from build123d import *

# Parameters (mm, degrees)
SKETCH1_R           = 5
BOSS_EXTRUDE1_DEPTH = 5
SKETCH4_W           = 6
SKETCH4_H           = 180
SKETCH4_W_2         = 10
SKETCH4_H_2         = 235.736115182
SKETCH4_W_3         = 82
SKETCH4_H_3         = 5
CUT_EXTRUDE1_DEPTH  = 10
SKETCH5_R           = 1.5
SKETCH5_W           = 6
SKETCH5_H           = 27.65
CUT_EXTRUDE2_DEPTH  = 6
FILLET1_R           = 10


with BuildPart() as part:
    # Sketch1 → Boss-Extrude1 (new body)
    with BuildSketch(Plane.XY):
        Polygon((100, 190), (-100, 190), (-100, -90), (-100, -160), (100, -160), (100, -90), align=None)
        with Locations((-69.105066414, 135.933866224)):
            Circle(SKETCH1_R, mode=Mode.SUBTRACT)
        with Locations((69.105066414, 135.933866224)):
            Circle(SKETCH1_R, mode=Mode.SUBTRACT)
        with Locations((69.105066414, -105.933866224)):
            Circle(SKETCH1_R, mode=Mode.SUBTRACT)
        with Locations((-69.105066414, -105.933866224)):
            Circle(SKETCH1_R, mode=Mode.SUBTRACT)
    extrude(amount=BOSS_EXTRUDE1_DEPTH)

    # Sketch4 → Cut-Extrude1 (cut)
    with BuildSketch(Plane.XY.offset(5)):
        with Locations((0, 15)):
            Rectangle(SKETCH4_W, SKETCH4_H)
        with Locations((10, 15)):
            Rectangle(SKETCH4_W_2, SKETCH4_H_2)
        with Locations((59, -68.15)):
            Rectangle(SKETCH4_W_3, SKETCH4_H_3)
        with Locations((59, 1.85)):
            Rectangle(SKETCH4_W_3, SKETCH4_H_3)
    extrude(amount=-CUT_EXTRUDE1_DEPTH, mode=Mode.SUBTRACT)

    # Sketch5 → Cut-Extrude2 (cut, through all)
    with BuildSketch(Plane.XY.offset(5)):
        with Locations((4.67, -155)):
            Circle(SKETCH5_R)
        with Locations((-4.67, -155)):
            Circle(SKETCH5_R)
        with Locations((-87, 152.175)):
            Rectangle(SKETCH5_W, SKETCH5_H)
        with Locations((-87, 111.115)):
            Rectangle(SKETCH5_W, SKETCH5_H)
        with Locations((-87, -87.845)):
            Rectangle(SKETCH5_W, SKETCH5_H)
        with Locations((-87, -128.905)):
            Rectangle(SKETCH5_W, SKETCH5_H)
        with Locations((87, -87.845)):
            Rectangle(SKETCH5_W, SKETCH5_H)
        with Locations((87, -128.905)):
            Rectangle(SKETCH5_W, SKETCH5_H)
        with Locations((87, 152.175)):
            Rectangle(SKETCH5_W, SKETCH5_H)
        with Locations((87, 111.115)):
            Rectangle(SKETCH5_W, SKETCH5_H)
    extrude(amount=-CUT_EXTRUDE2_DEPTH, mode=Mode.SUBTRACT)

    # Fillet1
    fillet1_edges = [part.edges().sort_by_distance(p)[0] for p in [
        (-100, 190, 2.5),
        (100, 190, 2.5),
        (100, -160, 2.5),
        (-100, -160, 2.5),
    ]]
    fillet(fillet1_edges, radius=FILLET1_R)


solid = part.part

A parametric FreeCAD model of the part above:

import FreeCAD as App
import Part
import Sketcher

V = App.Vector


def edges_at(feature, points):
    """Names of the edges that pass closest to the given points."""
    edges = feature.Shape.Edges
    near = lambda p: min(range(len(edges)), key=lambda i: edges[i].distToShape(Part.Vertex(*p))[0])
    return sorted({f"Edge{near(p) + 1}" for p in points})

doc = App.newDocument("Part")
body = doc.addObject("PartDesign::Body", "Body")

# Sketch on XY plane
sketch1 = doc.addObject("Sketcher::SketchObject", "Sketch")
body.addObject(sketch1)
sketch1.AttachmentSupport = (doc.XY_Plane, [""])
sketch1.MapMode = "FlatFace"
sketch1.addGeometry(Part.LineSegment(V(100, 190, 0), V(-100, 190, 0)), False)
sketch1.addGeometry(Part.LineSegment(V(-100, 190, 0), V(-100, -160, 0)), False)
sketch1.addGeometry(Part.LineSegment(V(-100, -160, 0), V(100, -160, 0)), False)
sketch1.addGeometry(Part.LineSegment(V(100, -160, 0), V(100, 190, 0)), False)
sketch1.addGeometry(Part.Circle(V(-69.105066, -105.933866, 0), V(0, 0, 1), 5), False)
sketch1.addGeometry(Part.Circle(V(69.105066, -105.933866, 0), V(0, 0, 1), 5), False)
sketch1.addGeometry(Part.Circle(V(-69.105066, 135.933866, 0), V(0, 0, 1), 5), False)
sketch1.addGeometry(Part.Circle(V(69.105066, 135.933866, 0), V(0, 0, 1), 5), False)
sketch1.addConstraint(Sketcher.Constraint("Coincident", 0, 2, 1, 1))
sketch1.addConstraint(Sketcher.Constraint("Coincident", 1, 2, 2, 1))
sketch1.addConstraint(Sketcher.Constraint("Coincident", 2, 2, 3, 1))
sketch1.addConstraint(Sketcher.Constraint("Coincident", 3, 2, 0, 1))
sketch1.addConstraint(Sketcher.Constraint("Horizontal", 0))
sketch1.addConstraint(Sketcher.Constraint("Vertical", 1))
sketch1.addConstraint(Sketcher.Constraint("Horizontal", 2))
sketch1.addConstraint(Sketcher.Constraint("Vertical", 3))
sketch1.addConstraint(Sketcher.Constraint("Equal", 4, 5))
sketch1.addConstraint(Sketcher.Constraint("Equal", 5, 6))
sketch1.addConstraint(Sketcher.Constraint("Equal", 6, 7))
sketch1.addConstraint(Sketcher.Constraint("Symmetric", 4, 3, 5, 3, -2))
sketch1.addConstraint(Sketcher.Constraint("Symmetric", 6, 3, 7, 3, -2))
sketch1.addConstraint(Sketcher.Constraint("Vertical", 4, 3, 6, 3))
sketch1.addConstraint(Sketcher.Constraint("Diameter", 4, 10.0))
sketch1.addConstraint(Sketcher.Constraint("DistanceX", 0, 2, 0, 1, 200.0))
sketch1.addConstraint(Sketcher.Constraint("DistanceY", 1, 2, 1, 1, 350.0))
sketch1.addConstraint(Sketcher.Constraint("DistanceX", 0, 2, -1, 1, 100.0))
sketch1.addConstraint(Sketcher.Constraint("DistanceY", -1, 1, 0, 2, 190.0))
sketch1.addConstraint(Sketcher.Constraint("DistanceX", 4, 3, -1, 1, 69.105066))
sketch1.addConstraint(Sketcher.Constraint("DistanceY", 4, 3, -1, 1, 105.933866))
sketch1.addConstraint(Sketcher.Constraint("DistanceY", -1, 1, 6, 3, 135.933866))
pad1 = doc.addObject("PartDesign::Pad", "Pad")
body.addObject(pad1)
pad1.Profile = sketch1
pad1.Length = 5

# Sketch on XY plane
sketch2 = doc.addObject("Sketcher::SketchObject", "Sketch001")
body.addObject(sketch2)
sketch2.AttachmentSupport = (doc.XY_Plane, [""])
sketch2.MapMode = "FlatFace"
sketch2.AttachmentOffset = App.Placement(V(0, 0, 5), App.Rotation())
sketch2.addGeometry(Part.LineSegment(V(-3, 105, 0), V(-3, -75, 0)), False)
sketch2.addGeometry(Part.LineSegment(V(-3, -75, 0), V(3, -75, 0)), False)
sketch2.addGeometry(Part.LineSegment(V(3, -75, 0), V(3, 105, 0)), False)
sketch2.addGeometry(Part.LineSegment(V(3, 105, 0), V(-3, 105, 0)), False)
sketch2.addGeometry(Part.LineSegment(V(5, 132.868058, 0), V(5, -102.868058, 0)), False)
sketch2.addGeometry(Part.LineSegment(V(5, -102.868058, 0), V(15, -102.868058, 0)), False)
sketch2.addGeometry(Part.LineSegment(V(15, -102.868058, 0), V(15, 132.868058, 0)), False)
sketch2.addGeometry(Part.LineSegment(V(15, 132.868058, 0), V(5, 132.868058, 0)), False)
sketch2.addGeometry(Part.LineSegment(V(18, -65.65, 0), V(18, -70.65, 0)), False)
sketch2.addGeometry(Part.LineSegment(V(18, -70.65, 0), V(100, -70.65, 0)), False)
sketch2.addGeometry(Part.LineSegment(V(100, -70.65, 0), V(100, -65.65, 0)), False)
sketch2.addGeometry(Part.LineSegment(V(100, -65.65, 0), V(18, -65.65, 0)), False)
sketch2.addGeometry(Part.LineSegment(V(18, 4.35, 0), V(18, -0.65, 0)), False)
sketch2.addGeometry(Part.LineSegment(V(18, -0.65, 0), V(100, -0.65, 0)), False)
sketch2.addGeometry(Part.LineSegment(V(100, -0.65, 0), V(100, 4.35, 0)), False)
sketch2.addGeometry(Part.LineSegment(V(100, 4.35, 0), V(18, 4.35, 0)), False)
sketch2.addConstraint(Sketcher.Constraint("Coincident", 0, 2, 1, 1))
sketch2.addConstraint(Sketcher.Constraint("Coincident", 1, 2, 2, 1))
sketch2.addConstraint(Sketcher.Constraint("Coincident", 2, 2, 3, 1))
sketch2.addConstraint(Sketcher.Constraint("Coincident", 3, 2, 0, 1))
sketch2.addConstraint(Sketcher.Constraint("Coincident", 4, 2, 5, 1))
sketch2.addConstraint(Sketcher.Constraint("Coincident", 5, 2, 6, 1))
sketch2.addConstraint(Sketcher.Constraint("Coincident", 6, 2, 7, 1))
sketch2.addConstraint(Sketcher.Constraint("Coincident", 7, 2, 4, 1))
sketch2.addConstraint(Sketcher.Constraint("Coincident", 8, 2, 9, 1))
sketch2.addConstraint(Sketcher.Constraint("Coincident", 9, 2, 10, 1))
sketch2.addConstraint(Sketcher.Constraint("Coincident", 10, 2, 11, 1))
sketch2.addConstraint(Sketcher.Constraint("Coincident", 11, 2, 8, 1))
sketch2.addConstraint(Sketcher.Constraint("Coincident", 12, 2, 13, 1))
sketch2.addConstraint(Sketcher.Constraint("Coincident", 13, 2, 14, 1))
sketch2.addConstraint(Sketcher.Constraint("Coincident", 14, 2, 15, 1))
sketch2.addConstraint(Sketcher.Constraint("Coincident", 15, 2, 12, 1))
sketch2.addConstraint(Sketcher.Constraint("Vertical", 0))
sketch2.addConstraint(Sketcher.Constraint("Horizontal", 1))
sketch2.addConstraint(Sketcher.Constraint("Vertical", 2))
sketch2.addConstraint(Sketcher.Constraint("Horizontal", 3))
sketch2.addConstraint(Sketcher.Constraint("Vertical", 4))
sketch2.addConstraint(Sketcher.Constraint("Horizontal", 5))
sketch2.addConstraint(Sketcher.Constraint("Vertical", 6))
sketch2.addConstraint(Sketcher.Constraint("Horizontal", 7))
sketch2.addConstraint(Sketcher.Constraint("Vertical", 8))
sketch2.addConstraint(Sketcher.Constraint("Horizontal", 9))
sketch2.addConstraint(Sketcher.Constraint("Vertical", 10))
sketch2.addConstraint(Sketcher.Constraint("Horizontal", 11))
sketch2.addConstraint(Sketcher.Constraint("Vertical", 12))
sketch2.addConstraint(Sketcher.Constraint("Horizontal", 13))
sketch2.addConstraint(Sketcher.Constraint("Vertical", 14))
sketch2.addConstraint(Sketcher.Constraint("Horizontal", 15))
sketch2.addConstraint(Sketcher.Constraint("Vertical", 11, 2, 12, 2))
sketch2.addConstraint(Sketcher.Constraint("Vertical", 10, 2, 13, 2))
sketch2.addConstraint(Sketcher.Constraint("Equal", 10, 12))
sketch2.addConstraint(Sketcher.Constraint("DistanceX", 1, 1, 1, 2, 6.0))
sketch2.addConstraint(Sketcher.Constraint("DistanceX", 5, 1, 5, 2, 10.0))
sketch2.addConstraint(Sketcher.Constraint("DistanceX", 9, 1, 9, 2, 82.0))
sketch2.addConstraint(Sketcher.Constraint("DistanceY", 0, 2, 0, 1, 180.0))
sketch2.addConstraint(Sketcher.Constraint("DistanceY", 8, 2, 8, 1, 5.0))
sketch2.addConstraint(Sketcher.Constraint("DistanceX", 0, 2, -1, 1, 3.0))
sketch2.addConstraint(Sketcher.Constraint("DistanceY", 0, 2, -1, 1, 75.0))
sketch2.addConstraint(Sketcher.Constraint("DistanceX", -1, 1, 4, 2, 5.0))
sketch2.addConstraint(Sketcher.Constraint("DistanceX", -1, 1, 8, 2, 18.0))
sketch2.addConstraint(Sketcher.Constraint("DistanceY", 11, 2, 12, 2, 65.0))
sketch2.addConstraint(Sketcher.Constraint("DistanceY", 8, 2, -1, 1, 70.65))
sketch2.addConstraint(Sketcher.Constraint("DistanceY", 4, 2, 4, 1, 235.736115))
sketch2.addConstraint(Sketcher.Constraint("DistanceY", 4, 2, -1, 1, 102.868058))
pocket1 = doc.addObject("PartDesign::Pocket", "Pocket")
body.addObject(pocket1)
pocket1.Profile = sketch2
pocket1.Length = 10

# Sketch on XY plane
sketch3 = doc.addObject("Sketcher::SketchObject", "Sketch002")
body.addObject(sketch3)
sketch3.AttachmentSupport = (doc.XY_Plane, [""])
sketch3.MapMode = "FlatFace"
sketch3.AttachmentOffset = App.Placement(V(0, 0, 5), App.Rotation())
sketch3.addGeometry(Part.Circle(V(4.67, -155, 0), V(0, 0, 1), 1.5), False)
sketch3.addGeometry(Part.Circle(V(-4.67, -155, 0), V(0, 0, 1), 1.5), False)
sketch3.addGeometry(Part.LineSegment(V(-90, 166, 0), V(-90, 138.35, 0)), False)
sketch3.addGeometry(Part.LineSegment(V(-90, 138.35, 0), V(-84, 138.35, 0)), False)
sketch3.addGeometry(Part.LineSegment(V(-84, 138.35, 0), V(-84, 166, 0)), False)
sketch3.addGeometry(Part.LineSegment(V(-84, 166, 0), V(-90, 166, 0)), False)
sketch3.addGeometry(Part.LineSegment(V(-90, 124.94, 0), V(-90, 97.29, 0)), False)
sketch3.addGeometry(Part.LineSegment(V(-90, 97.29, 0), V(-84, 97.29, 0)), False)
sketch3.addGeometry(Part.LineSegment(V(-84, 97.29, 0), V(-84, 124.94, 0)), False)
sketch3.addGeometry(Part.LineSegment(V(-84, 124.94, 0), V(-90, 124.94, 0)), False)
sketch3.addGeometry(Part.LineSegment(V(-90, -74.02, 0), V(-90, -101.67, 0)), False)
sketch3.addGeometry(Part.LineSegment(V(-90, -101.67, 0), V(-84, -101.67, 0)), False)
sketch3.addGeometry(Part.LineSegment(V(-84, -101.67, 0), V(-84, -74.02, 0)), False)
sketch3.addGeometry(Part.LineSegment(V(-84, -74.02, 0), V(-90, -74.02, 0)), False)
sketch3.addGeometry(Part.LineSegment(V(-90, -115.08, 0), V(-90, -142.73, 0)), False)
sketch3.addGeometry(Part.LineSegment(V(-90, -142.73, 0), V(-84, -142.73, 0)), False)
sketch3.addGeometry(Part.LineSegment(V(-84, -142.73, 0), V(-84, -115.08, 0)), False)
sketch3.addGeometry(Part.LineSegment(V(-84, -115.08, 0), V(-90, -115.08, 0)), False)
sketch3.addGeometry(Part.LineSegment(V(84, -74.02, 0), V(84, -101.67, 0)), False)
sketch3.addGeometry(Part.LineSegment(V(84, -101.67, 0), V(90, -101.67, 0)), False)
sketch3.addGeometry(Part.LineSegment(V(90, -101.67, 0), V(90, -74.02, 0)), False)
sketch3.addGeometry(Part.LineSegment(V(90, -74.02, 0), V(84, -74.02, 0)), False)
sketch3.addGeometry(Part.LineSegment(V(84, -115.08, 0), V(84, -142.73, 0)), False)
sketch3.addGeometry(Part.LineSegment(V(84, -142.73, 0), V(90, -142.73, 0)), False)
sketch3.addGeometry(Part.LineSegment(V(90, -142.73, 0), V(90, -115.08, 0)), False)
sketch3.addGeometry(Part.LineSegment(V(90, -115.08, 0), V(84, -115.08, 0)), False)
sketch3.addGeometry(Part.LineSegment(V(84, 166, 0), V(84, 138.35, 0)), False)
sketch3.addGeometry(Part.LineSegment(V(84, 138.35, 0), V(90, 138.35, 0)), False)
sketch3.addGeometry(Part.LineSegment(V(90, 138.35, 0), V(90, 166, 0)), False)
sketch3.addGeometry(Part.LineSegment(V(90, 166, 0), V(84, 166, 0)), False)
sketch3.addGeometry(Part.LineSegment(V(84, 124.94, 0), V(84, 97.29, 0)), False)
sketch3.addGeometry(Part.LineSegment(V(84, 97.29, 0), V(90, 97.29, 0)), False)
sketch3.addGeometry(Part.LineSegment(V(90, 97.29, 0), V(90, 124.94, 0)), False)
sketch3.addGeometry(Part.LineSegment(V(90, 124.94, 0), V(84, 124.94, 0)), False)
sketch3.addConstraint(Sketcher.Constraint("Coincident", 2, 2, 3, 1))
sketch3.addConstraint(Sketcher.Constraint("Coincident", 3, 2, 4, 1))
sketch3.addConstraint(Sketcher.Constraint("Coincident", 4, 2, 5, 1))
sketch3.addConstraint(Sketcher.Constraint("Coincident", 5, 2, 2, 1))
sketch3.addConstraint(Sketcher.Constraint("Coincident", 6, 2, 7, 1))
sketch3.addConstraint(Sketcher.Constraint("Coincident", 7, 2, 8, 1))
sketch3.addConstraint(Sketcher.Constraint("Coincident", 8, 2, 9, 1))
sketch3.addConstraint(Sketcher.Constraint("Coincident", 9, 2, 6, 1))
sketch3.addConstraint(Sketcher.Constraint("Coincident", 10, 2, 11, 1))
sketch3.addConstraint(Sketcher.Constraint("Coincident", 11, 2, 12, 1))
sketch3.addConstraint(Sketcher.Constraint("Coincident", 12, 2, 13, 1))
sketch3.addConstraint(Sketcher.Constraint("Coincident", 13, 2, 10, 1))
sketch3.addConstraint(Sketcher.Constraint("Coincident", 14, 2, 15, 1))
sketch3.addConstraint(Sketcher.Constraint("Coincident", 15, 2, 16, 1))
sketch3.addConstraint(Sketcher.Constraint("Coincident", 16, 2, 17, 1))
sketch3.addConstraint(Sketcher.Constraint("Coincident", 17, 2, 14, 1))
sketch3.addConstraint(Sketcher.Constraint("Coincident", 18, 2, 19, 1))
sketch3.addConstraint(Sketcher.Constraint("Coincident", 19, 2, 20, 1))
sketch3.addConstraint(Sketcher.Constraint("Coincident", 20, 2, 21, 1))
sketch3.addConstraint(Sketcher.Constraint("Coincident", 21, 2, 18, 1))
sketch3.addConstraint(Sketcher.Constraint("Coincident", 22, 2, 23, 1))
sketch3.addConstraint(Sketcher.Constraint("Coincident", 23, 2, 24, 1))
sketch3.addConstraint(Sketcher.Constraint("Coincident", 24, 2, 25, 1))
sketch3.addConstraint(Sketcher.Constraint("Coincident", 25, 2, 22, 1))
sketch3.addConstraint(Sketcher.Constraint("Coincident", 26, 2, 27, 1))
sketch3.addConstraint(Sketcher.Constraint("Coincident", 27, 2, 28, 1))
sketch3.addConstraint(Sketcher.Constraint("Coincident", 28, 2, 29, 1))
sketch3.addConstraint(Sketcher.Constraint("Coincident", 29, 2, 26, 1))
sketch3.addConstraint(Sketcher.Constraint("Coincident", 30, 2, 31, 1))
sketch3.addConstraint(Sketcher.Constraint("Coincident", 31, 2, 32, 1))
sketch3.addConstraint(Sketcher.Constraint("Coincident", 32, 2, 33, 1))
sketch3.addConstraint(Sketcher.Constraint("Coincident", 33, 2, 30, 1))
sketch3.addConstraint(Sketcher.Constraint("Vertical", 2))
sketch3.addConstraint(Sketcher.Constraint("Horizontal", 3))
sketch3.addConstraint(Sketcher.Constraint("Vertical", 4))
sketch3.addConstraint(Sketcher.Constraint("Horizontal", 5))
sketch3.addConstraint(Sketcher.Constraint("Vertical", 6))
sketch3.addConstraint(Sketcher.Constraint("Horizontal", 7))
sketch3.addConstraint(Sketcher.Constraint("Vertical", 8))
sketch3.addConstraint(Sketcher.Constraint("Horizontal", 9))
sketch3.addConstraint(Sketcher.Constraint("Vertical", 10))
sketch3.addConstraint(Sketcher.Constraint("Horizontal", 11))
sketch3.addConstraint(Sketcher.Constraint("Vertical", 12))
sketch3.addConstraint(Sketcher.Constraint("Horizontal", 13))
sketch3.addConstraint(Sketcher.Constraint("Vertical", 14))
sketch3.addConstraint(Sketcher.Constraint("Horizontal", 15))
sketch3.addConstraint(Sketcher.Constraint("Vertical", 16))
sketch3.addConstraint(Sketcher.Constraint("Horizontal", 17))
sketch3.addConstraint(Sketcher.Constraint("Vertical", 18))
sketch3.addConstraint(Sketcher.Constraint("Horizontal", 19))
sketch3.addConstraint(Sketcher.Constraint("Vertical", 20))
sketch3.addConstraint(Sketcher.Constraint("Horizontal", 21))
sketch3.addConstraint(Sketcher.Constraint("Vertical", 22))
sketch3.addConstraint(Sketcher.Constraint("Horizontal", 23))
sketch3.addConstraint(Sketcher.Constraint("Vertical", 24))
sketch3.addConstraint(Sketcher.Constraint("Horizontal", 25))
sketch3.addConstraint(Sketcher.Constraint("Vertical", 26))
sketch3.addConstraint(Sketcher.Constraint("Horizontal", 27))
sketch3.addConstraint(Sketcher.Constraint("Vertical", 28))
sketch3.addConstraint(Sketcher.Constraint("Horizontal", 29))
sketch3.addConstraint(Sketcher.Constraint("Vertical", 30))
sketch3.addConstraint(Sketcher.Constraint("Horizontal", 31))
sketch3.addConstraint(Sketcher.Constraint("Vertical", 32))
sketch3.addConstraint(Sketcher.Constraint("Horizontal", 33))
sketch3.addConstraint(Sketcher.Constraint("Equal", 0, 1))
sketch3.addConstraint(Sketcher.Constraint("Symmetric", 0, 3, 1, 3, -2))
sketch3.addConstraint(Sketcher.Constraint("Symmetric", 11, 2, 18, 2, -2))
sketch3.addConstraint(Sketcher.Constraint("Symmetric", 13, 2, 20, 2, -2))
sketch3.addConstraint(Sketcher.Constraint("Symmetric", 15, 2, 22, 2, -2))
sketch3.addConstraint(Sketcher.Constraint("Symmetric", 17, 2, 24, 2, -2))
sketch3.addConstraint(Sketcher.Constraint("Symmetric", 3, 2, 26, 2, -2))
sketch3.addConstraint(Sketcher.Constraint("Symmetric", 5, 2, 28, 2, -2))
sketch3.addConstraint(Sketcher.Constraint("Symmetric", 7, 2, 30, 2, -2))
sketch3.addConstraint(Sketcher.Constraint("Symmetric", 9, 2, 32, 2, -2))
sketch3.addConstraint(Sketcher.Constraint("Vertical", 5, 2, 6, 2))
sketch3.addConstraint(Sketcher.Constraint("Vertical", 4, 2, 7, 2))
sketch3.addConstraint(Sketcher.Constraint("Vertical", 9, 2, 10, 2))
sketch3.addConstraint(Sketcher.Constraint("Vertical", 8, 2, 11, 2))
sketch3.addConstraint(Sketcher.Constraint("Vertical", 13, 2, 14, 2))
sketch3.addConstraint(Sketcher.Constraint("Vertical", 12, 2, 15, 2))
sketch3.addConstraint(Sketcher.Constraint("Equal", 4, 6))
sketch3.addConstraint(Sketcher.Constraint("Equal", 8, 10))
sketch3.addConstraint(Sketcher.Constraint("Equal", 12, 14))
sketch3.addConstraint(Sketcher.Constraint("Diameter", 0, 3.0))
sketch3.addConstraint(Sketcher.Constraint("DistanceX", 3, 1, 3, 2, 6.0))
sketch3.addConstraint(Sketcher.Constraint("DistanceY", 0, 3, -1, 1, 155.0))
sketch3.addConstraint(Sketcher.Constraint("DistanceX", 2, 2, -1, 1, 90.0))
sketch3.addConstraint(Sketcher.Constraint("DistanceY", -1, 1, 4, 2, 166.0))
sketch3.addConstraint(Sketcher.Constraint("DistanceY", 2, 2, 2, 1, 27.65))
sketch3.addConstraint(Sketcher.Constraint("DistanceX", -1, 1, 0, 3, 4.67))
sketch3.addConstraint(Sketcher.Constraint("DistanceY", -1, 1, 6, 2, 97.29))
sketch3.addConstraint(Sketcher.Constraint("DistanceY", 10, 2, -1, 1, 101.67))
sketch3.addConstraint(Sketcher.Constraint("DistanceY", 14, 2, -1, 1, 142.73))
pocket2 = doc.addObject("PartDesign::Pocket", "Pocket001")
body.addObject(pocket2)
pocket2.Profile = sketch3
pocket2.Type = "ThroughAll"
doc.recompute()

fillet = doc.addObject("PartDesign::Fillet", "Fillet")
body.addObject(fillet)
fillet.Base = (pocket2, edges_at(pocket2, [
    (-100, 190, 2.5),
    (100, 190, 2.5),
    (100, -160, 2.5),
    (-100, -160, 2.5),
]))
fillet.Radius = 10

doc.recompute()
